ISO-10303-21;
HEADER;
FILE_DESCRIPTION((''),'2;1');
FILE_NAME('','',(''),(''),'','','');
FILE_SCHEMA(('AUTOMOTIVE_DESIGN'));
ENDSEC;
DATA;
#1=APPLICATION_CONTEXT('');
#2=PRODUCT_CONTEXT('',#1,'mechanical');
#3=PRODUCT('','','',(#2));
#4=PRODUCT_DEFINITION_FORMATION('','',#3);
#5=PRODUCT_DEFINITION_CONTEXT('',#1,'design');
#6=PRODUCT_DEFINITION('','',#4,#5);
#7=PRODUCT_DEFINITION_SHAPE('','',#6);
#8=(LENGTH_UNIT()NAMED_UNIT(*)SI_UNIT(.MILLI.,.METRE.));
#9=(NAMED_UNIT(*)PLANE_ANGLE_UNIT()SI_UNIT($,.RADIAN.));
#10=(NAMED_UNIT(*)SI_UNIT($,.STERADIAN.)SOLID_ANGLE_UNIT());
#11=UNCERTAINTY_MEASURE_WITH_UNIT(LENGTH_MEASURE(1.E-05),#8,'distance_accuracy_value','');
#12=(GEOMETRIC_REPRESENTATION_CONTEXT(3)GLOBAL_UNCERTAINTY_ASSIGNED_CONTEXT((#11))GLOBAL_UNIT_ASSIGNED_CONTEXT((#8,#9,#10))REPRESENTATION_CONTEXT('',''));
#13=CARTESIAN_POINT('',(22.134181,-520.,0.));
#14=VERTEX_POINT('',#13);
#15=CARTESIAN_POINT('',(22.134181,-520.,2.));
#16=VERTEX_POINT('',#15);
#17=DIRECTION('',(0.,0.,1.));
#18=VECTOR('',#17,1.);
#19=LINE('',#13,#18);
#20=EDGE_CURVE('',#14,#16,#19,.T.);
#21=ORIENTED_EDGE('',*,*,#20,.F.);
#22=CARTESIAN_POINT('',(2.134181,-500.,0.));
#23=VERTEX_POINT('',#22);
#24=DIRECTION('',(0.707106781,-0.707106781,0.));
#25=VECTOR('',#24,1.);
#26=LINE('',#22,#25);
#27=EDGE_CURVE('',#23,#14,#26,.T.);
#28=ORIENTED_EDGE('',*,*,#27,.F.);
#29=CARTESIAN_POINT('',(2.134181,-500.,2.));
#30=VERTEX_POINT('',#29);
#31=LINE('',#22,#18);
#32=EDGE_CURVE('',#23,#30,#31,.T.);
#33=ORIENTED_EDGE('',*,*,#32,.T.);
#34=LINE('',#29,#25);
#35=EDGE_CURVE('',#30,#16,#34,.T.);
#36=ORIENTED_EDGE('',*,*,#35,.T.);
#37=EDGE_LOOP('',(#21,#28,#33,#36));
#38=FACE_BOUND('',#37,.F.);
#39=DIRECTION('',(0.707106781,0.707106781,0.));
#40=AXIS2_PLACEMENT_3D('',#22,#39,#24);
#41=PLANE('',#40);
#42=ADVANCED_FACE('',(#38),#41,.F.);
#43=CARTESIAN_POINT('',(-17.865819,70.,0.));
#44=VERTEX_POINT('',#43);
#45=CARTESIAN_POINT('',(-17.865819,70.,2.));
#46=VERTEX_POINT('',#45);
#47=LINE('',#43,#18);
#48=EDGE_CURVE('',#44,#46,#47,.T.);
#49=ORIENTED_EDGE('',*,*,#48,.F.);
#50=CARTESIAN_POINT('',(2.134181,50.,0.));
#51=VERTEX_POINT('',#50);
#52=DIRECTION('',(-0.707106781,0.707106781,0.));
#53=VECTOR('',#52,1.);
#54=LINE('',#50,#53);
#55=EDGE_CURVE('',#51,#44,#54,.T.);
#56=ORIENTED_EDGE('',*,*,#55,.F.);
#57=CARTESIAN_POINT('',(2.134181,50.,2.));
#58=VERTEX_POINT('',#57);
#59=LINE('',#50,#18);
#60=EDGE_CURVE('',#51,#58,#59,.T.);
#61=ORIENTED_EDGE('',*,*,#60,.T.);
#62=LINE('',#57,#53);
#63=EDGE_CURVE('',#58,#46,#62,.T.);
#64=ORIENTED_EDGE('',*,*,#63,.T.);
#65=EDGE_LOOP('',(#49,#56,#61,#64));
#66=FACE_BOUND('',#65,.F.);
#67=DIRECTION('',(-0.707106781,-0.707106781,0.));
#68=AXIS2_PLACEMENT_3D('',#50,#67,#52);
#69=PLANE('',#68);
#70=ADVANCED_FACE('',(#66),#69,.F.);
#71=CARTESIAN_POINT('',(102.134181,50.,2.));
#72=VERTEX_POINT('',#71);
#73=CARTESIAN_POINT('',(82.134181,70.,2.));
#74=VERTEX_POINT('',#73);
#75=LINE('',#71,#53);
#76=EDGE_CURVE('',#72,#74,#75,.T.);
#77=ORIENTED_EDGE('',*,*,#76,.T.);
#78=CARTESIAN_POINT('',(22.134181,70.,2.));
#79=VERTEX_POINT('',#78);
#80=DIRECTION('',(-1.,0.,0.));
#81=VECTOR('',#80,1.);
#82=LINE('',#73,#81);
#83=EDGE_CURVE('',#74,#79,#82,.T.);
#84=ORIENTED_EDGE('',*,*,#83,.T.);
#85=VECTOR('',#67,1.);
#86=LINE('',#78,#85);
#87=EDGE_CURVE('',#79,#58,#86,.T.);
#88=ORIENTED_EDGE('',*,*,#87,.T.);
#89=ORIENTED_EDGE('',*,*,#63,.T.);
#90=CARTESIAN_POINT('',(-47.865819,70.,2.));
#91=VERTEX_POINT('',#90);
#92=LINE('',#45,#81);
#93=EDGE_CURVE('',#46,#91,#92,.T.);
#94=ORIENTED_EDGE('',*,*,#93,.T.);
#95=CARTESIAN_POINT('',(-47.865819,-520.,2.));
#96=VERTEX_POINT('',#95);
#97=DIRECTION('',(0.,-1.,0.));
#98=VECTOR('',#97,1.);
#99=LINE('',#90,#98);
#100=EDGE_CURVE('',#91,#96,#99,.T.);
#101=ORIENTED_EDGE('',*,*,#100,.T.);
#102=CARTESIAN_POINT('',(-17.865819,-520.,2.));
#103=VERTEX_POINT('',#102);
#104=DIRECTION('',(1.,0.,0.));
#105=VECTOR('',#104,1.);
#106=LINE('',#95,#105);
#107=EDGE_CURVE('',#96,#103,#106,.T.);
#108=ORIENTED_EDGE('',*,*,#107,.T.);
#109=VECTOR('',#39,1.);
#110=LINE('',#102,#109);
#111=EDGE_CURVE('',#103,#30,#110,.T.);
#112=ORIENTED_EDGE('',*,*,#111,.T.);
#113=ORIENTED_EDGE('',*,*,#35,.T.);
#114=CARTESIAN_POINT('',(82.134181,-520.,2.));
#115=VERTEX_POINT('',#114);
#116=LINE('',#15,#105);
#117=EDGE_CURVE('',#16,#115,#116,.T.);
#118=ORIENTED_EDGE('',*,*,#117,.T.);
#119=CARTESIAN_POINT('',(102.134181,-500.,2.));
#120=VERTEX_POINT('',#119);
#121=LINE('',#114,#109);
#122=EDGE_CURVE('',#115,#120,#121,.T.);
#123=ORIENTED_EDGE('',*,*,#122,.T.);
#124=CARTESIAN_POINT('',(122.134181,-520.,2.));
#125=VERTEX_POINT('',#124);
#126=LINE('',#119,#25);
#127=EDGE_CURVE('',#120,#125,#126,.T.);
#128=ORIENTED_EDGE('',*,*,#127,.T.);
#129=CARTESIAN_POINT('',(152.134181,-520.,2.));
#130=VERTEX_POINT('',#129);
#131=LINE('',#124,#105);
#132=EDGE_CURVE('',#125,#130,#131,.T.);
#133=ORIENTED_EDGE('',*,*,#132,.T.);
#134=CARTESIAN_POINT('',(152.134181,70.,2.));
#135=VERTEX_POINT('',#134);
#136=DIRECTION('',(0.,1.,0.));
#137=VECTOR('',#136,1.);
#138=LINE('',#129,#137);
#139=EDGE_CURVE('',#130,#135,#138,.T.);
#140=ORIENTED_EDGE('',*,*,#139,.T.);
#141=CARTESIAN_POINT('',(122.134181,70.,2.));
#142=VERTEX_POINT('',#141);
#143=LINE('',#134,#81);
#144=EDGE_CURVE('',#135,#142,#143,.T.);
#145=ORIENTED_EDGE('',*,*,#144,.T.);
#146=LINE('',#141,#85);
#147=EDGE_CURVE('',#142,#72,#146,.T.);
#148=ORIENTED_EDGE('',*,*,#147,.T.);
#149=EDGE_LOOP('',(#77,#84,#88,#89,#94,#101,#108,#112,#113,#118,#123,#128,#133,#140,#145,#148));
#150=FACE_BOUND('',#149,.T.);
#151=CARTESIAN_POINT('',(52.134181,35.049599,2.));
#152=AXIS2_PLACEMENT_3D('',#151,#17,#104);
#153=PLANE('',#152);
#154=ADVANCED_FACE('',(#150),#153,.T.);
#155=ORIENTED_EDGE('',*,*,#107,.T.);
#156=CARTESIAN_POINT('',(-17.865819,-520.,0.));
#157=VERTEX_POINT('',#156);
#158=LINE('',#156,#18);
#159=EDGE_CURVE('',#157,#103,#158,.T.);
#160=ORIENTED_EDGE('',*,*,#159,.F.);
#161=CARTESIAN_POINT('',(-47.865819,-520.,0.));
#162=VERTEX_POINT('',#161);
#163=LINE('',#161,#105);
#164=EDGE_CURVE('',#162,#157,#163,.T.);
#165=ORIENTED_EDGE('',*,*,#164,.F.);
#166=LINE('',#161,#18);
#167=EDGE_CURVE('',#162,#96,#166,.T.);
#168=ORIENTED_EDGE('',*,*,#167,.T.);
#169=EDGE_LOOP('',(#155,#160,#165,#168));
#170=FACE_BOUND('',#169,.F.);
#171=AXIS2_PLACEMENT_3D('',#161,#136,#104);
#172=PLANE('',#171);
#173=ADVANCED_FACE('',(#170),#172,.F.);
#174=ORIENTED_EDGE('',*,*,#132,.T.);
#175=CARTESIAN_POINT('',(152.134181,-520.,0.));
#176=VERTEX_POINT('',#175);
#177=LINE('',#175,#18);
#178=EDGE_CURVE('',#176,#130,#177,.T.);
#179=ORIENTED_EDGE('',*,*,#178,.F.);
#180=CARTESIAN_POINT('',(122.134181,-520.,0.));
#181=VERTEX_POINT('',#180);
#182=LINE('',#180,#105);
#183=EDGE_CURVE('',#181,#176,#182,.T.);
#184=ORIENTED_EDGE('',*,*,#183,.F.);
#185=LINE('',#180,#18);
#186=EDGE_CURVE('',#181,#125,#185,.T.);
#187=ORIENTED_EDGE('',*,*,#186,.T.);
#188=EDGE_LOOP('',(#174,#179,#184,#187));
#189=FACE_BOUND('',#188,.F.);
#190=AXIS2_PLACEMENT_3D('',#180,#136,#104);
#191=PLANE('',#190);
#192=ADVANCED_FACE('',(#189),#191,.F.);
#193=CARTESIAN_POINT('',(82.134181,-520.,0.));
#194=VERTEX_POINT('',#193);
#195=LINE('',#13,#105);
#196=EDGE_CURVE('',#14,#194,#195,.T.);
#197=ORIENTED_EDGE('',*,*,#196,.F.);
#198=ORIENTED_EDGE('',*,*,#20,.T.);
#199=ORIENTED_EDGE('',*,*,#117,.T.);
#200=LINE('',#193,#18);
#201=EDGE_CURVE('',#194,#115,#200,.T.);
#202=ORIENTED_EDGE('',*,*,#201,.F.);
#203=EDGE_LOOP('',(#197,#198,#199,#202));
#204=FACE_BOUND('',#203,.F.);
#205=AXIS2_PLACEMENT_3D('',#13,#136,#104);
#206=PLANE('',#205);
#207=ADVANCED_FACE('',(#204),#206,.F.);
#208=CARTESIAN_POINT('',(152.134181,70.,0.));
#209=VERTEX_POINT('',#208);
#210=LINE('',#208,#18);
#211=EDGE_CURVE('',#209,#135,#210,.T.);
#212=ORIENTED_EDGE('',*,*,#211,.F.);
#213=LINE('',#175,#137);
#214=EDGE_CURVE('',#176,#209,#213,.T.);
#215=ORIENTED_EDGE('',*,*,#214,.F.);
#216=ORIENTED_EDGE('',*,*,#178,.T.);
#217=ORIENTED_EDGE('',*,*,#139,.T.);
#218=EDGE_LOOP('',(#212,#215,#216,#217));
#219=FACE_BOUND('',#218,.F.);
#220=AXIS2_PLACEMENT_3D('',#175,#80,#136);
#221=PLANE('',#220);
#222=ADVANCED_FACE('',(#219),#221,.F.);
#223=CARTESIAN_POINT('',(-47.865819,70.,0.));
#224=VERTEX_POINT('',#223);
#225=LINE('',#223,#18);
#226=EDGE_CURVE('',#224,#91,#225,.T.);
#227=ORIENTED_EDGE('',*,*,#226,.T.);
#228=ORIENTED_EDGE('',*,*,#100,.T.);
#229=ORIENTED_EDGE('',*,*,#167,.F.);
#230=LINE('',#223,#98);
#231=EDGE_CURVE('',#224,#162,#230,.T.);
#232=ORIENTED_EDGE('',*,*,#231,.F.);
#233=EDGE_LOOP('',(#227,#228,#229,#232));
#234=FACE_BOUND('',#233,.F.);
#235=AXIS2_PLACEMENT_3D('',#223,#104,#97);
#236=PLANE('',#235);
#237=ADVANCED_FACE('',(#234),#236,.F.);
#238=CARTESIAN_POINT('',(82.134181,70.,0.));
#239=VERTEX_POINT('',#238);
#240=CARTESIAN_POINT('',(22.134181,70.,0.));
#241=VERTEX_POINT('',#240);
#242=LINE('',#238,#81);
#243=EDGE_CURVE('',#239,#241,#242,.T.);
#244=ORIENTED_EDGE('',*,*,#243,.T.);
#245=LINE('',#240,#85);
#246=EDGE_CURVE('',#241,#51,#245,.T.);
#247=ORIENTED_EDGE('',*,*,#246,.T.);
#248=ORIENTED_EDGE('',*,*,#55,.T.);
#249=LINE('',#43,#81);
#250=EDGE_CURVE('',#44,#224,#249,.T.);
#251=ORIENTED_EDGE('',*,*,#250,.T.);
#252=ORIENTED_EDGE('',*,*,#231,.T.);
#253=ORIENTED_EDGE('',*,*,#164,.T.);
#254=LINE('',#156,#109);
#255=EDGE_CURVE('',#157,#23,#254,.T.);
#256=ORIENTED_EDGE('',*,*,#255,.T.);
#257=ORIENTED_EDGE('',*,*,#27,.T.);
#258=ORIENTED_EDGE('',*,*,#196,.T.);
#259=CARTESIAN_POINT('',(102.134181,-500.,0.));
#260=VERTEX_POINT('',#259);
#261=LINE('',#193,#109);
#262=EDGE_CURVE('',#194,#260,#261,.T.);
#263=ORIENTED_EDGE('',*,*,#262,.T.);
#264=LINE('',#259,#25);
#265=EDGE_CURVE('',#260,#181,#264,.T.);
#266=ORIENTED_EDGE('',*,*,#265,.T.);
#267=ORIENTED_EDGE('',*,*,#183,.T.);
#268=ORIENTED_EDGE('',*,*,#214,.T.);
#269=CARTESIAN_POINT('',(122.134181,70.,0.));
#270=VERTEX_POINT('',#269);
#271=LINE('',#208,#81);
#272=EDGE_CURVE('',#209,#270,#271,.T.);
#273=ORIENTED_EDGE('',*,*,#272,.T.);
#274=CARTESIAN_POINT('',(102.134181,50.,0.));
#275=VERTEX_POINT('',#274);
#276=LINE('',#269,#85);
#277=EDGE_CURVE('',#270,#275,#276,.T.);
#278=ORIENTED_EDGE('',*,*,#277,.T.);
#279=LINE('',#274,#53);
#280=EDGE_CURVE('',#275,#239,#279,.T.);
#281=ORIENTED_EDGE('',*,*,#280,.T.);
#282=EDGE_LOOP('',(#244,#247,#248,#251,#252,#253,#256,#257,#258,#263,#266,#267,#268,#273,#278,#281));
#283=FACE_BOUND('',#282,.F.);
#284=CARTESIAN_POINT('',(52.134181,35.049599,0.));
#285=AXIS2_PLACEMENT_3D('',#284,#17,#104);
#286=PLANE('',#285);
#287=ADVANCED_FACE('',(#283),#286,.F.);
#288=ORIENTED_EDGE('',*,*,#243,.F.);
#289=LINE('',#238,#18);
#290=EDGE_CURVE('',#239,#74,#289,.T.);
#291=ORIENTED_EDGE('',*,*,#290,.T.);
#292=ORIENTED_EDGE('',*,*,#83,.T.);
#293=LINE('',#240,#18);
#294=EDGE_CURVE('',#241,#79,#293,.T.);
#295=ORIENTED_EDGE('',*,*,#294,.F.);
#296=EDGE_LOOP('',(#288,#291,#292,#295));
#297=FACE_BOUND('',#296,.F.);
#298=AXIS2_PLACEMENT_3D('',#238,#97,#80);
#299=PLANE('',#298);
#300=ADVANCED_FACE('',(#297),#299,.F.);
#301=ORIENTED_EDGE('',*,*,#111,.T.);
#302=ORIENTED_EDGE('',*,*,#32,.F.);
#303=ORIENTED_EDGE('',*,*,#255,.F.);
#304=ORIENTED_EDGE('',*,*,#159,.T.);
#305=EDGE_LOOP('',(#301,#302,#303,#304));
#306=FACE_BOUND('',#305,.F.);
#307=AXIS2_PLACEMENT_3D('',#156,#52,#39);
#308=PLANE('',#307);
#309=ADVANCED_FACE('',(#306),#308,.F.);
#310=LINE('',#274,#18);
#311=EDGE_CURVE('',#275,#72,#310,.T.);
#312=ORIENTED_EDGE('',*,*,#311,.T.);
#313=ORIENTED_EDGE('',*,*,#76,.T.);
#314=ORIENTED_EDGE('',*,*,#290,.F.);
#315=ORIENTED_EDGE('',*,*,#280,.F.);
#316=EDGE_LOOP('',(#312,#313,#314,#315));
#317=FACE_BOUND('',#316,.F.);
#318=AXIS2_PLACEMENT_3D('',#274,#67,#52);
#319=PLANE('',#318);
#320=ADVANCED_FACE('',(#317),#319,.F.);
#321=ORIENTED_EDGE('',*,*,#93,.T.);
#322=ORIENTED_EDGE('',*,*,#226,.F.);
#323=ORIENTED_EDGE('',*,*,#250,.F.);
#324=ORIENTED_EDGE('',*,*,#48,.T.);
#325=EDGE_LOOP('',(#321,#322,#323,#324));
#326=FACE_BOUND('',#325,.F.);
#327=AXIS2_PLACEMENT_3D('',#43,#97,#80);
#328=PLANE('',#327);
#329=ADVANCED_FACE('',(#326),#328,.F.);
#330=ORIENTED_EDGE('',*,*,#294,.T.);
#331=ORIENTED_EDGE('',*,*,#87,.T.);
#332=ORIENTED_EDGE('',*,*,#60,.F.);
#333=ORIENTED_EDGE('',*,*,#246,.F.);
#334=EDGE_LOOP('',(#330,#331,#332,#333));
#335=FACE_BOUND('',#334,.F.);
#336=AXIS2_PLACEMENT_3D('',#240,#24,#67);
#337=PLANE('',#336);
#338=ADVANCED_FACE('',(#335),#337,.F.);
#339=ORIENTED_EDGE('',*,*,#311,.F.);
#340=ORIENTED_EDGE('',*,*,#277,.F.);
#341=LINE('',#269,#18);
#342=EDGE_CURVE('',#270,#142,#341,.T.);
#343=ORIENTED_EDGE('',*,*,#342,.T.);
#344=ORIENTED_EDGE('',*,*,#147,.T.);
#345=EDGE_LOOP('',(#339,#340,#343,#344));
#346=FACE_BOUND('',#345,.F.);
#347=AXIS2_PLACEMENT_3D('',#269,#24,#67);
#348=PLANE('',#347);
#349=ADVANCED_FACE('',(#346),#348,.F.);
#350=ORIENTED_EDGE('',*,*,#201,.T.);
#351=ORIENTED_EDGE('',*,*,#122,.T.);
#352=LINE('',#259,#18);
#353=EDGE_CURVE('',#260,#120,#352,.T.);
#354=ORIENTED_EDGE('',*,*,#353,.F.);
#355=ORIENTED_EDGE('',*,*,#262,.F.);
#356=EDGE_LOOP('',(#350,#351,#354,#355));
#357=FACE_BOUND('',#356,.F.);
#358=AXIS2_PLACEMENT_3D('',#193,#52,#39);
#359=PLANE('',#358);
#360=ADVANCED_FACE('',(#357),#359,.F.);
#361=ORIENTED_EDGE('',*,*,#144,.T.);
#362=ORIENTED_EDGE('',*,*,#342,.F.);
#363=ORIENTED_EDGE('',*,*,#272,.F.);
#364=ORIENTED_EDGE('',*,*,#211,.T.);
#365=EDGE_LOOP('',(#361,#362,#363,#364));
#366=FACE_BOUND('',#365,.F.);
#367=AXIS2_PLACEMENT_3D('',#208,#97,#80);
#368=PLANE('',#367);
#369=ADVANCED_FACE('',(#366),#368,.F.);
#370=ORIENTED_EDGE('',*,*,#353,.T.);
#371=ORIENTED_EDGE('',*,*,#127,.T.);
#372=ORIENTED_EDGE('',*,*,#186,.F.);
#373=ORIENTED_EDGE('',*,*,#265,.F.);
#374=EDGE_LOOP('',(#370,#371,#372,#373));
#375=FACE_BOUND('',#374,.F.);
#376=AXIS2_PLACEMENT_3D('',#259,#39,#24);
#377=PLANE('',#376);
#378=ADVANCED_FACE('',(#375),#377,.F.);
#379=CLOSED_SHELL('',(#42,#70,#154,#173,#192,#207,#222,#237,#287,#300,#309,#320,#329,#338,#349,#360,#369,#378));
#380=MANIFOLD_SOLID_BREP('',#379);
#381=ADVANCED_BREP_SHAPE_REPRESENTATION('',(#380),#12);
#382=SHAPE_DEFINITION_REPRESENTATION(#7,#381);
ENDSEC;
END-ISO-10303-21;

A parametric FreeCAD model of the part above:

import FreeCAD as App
import Part
import Sketcher
from FreeCAD import Vector
Q = App.Units.Quantity


def add_polygon(sketch, points):
    """Adds a closed chain of lines whose ends are joined by coincident constraints."""
    first, n = sketch.GeometryCount, len(points)
    for a, b in zip(points, points[1:] + points[:1]):
        sketch.addGeometry(Part.LineSegment(App.Vector(*a, 0), App.Vector(*b, 0)), False)
    for i in range(n):
        sketch.addConstraint(Sketcher.Constraint("Coincident", first + i, 2, first + (i + 1) % n, 1))

doc = App.newDocument("Part")
body = doc.addObject("PartDesign::Body", "Body")

# Sketch on XY plane
sketch1 = body.newObject("Sketcher::SketchObject", "Sketch")
sketch1.AttachmentSupport = (doc.getObject("XY_Plane"), [""])
sketch1.MapMode = "FlatFace"
add_polygon(sketch1, [(-48, 70), (-48, -520), (-18, -520), (2, -500), (22, -520), (82, -520), (102, -500), (122, -520), (152, -520), (152, 70), (122, 70), (102, 50), (82, 70), (22, 70), (2, 50), (-18, 70)])  # lines 0-15
sketch1.addConstraint([
    Sketcher.Constraint("Vertical", 0),
    Sketcher.Constraint("Horizontal", 1),
    Sketcher.Constraint("Horizontal", 4),
    Sketcher.Constraint("Horizontal", 7),
    Sketcher.Constraint("Vertical", 8),
    Sketcher.Constraint("Horizontal", 9),
    Sketcher.Constraint("Horizontal", 12),
    Sketcher.Constraint("Horizontal", 15),
    Sketcher.Constraint("Perpendicular", 2, 3),
    Sketcher.Constraint("Perpendicular", 3, 5),
    Sketcher.Constraint("Perpendicular", 5, 6),
    Sketcher.Constraint("Perpendicular", 6, 10),
    Sketcher.Constraint("Perpendicular", 10, 11),
    Sketcher.Constraint("Perpendicular", 11, 13),
    Sketcher.Constraint("Perpendicular", 13, 14),
    Sketcher.Constraint("Horizontal", 1, 2, 3, 2),
    Sketcher.Constraint("Horizontal", 2, 2, 5, 2),
    Sketcher.Constraint("Horizontal", 4, 2, 6, 2),
    Sketcher.Constraint("Horizontal", 9, 2, 11, 2),
    Sketcher.Constraint("Horizontal", 10, 2, 13, 2),
    Sketcher.Constraint("Horizontal", 12, 2, 14, 2),
    Sketcher.Constraint("Vertical", 6, 2, 9, 2),
    Sketcher.Constraint("Vertical", 5, 2, 10, 2),
    Sketcher.Constraint("Vertical", 4, 2, 11, 2),
    Sketcher.Constraint("Vertical", 3, 2, 12, 2),
    Sketcher.Constraint("Equal", 1, 7),
    Sketcher.Constraint("DistanceX", 1, 1, 1, 2, Q("30 mm")),
    Sketcher.Constraint("DistanceX", 4, 1, 4, 2, Q("60 mm")),
    Sketcher.Constraint("DistanceY", 0, 2, 0, 1, Q("590 mm")),
    Sketcher.Constraint("DistanceY", 0, 2, -1, 1, Q("520 mm")),
    Sketcher.Constraint("DistanceY", 2, 2, -1, 1, Q("500 mm")),
    Sketcher.Constraint("DistanceX", 0, 2, -1, 1, Q("47.865819 mm")),
])
pad1 = body.newObject("PartDesign::Pad", "Pad")
pad1.Profile = sketch1
pad1.Length = 2

doc.recompute()
